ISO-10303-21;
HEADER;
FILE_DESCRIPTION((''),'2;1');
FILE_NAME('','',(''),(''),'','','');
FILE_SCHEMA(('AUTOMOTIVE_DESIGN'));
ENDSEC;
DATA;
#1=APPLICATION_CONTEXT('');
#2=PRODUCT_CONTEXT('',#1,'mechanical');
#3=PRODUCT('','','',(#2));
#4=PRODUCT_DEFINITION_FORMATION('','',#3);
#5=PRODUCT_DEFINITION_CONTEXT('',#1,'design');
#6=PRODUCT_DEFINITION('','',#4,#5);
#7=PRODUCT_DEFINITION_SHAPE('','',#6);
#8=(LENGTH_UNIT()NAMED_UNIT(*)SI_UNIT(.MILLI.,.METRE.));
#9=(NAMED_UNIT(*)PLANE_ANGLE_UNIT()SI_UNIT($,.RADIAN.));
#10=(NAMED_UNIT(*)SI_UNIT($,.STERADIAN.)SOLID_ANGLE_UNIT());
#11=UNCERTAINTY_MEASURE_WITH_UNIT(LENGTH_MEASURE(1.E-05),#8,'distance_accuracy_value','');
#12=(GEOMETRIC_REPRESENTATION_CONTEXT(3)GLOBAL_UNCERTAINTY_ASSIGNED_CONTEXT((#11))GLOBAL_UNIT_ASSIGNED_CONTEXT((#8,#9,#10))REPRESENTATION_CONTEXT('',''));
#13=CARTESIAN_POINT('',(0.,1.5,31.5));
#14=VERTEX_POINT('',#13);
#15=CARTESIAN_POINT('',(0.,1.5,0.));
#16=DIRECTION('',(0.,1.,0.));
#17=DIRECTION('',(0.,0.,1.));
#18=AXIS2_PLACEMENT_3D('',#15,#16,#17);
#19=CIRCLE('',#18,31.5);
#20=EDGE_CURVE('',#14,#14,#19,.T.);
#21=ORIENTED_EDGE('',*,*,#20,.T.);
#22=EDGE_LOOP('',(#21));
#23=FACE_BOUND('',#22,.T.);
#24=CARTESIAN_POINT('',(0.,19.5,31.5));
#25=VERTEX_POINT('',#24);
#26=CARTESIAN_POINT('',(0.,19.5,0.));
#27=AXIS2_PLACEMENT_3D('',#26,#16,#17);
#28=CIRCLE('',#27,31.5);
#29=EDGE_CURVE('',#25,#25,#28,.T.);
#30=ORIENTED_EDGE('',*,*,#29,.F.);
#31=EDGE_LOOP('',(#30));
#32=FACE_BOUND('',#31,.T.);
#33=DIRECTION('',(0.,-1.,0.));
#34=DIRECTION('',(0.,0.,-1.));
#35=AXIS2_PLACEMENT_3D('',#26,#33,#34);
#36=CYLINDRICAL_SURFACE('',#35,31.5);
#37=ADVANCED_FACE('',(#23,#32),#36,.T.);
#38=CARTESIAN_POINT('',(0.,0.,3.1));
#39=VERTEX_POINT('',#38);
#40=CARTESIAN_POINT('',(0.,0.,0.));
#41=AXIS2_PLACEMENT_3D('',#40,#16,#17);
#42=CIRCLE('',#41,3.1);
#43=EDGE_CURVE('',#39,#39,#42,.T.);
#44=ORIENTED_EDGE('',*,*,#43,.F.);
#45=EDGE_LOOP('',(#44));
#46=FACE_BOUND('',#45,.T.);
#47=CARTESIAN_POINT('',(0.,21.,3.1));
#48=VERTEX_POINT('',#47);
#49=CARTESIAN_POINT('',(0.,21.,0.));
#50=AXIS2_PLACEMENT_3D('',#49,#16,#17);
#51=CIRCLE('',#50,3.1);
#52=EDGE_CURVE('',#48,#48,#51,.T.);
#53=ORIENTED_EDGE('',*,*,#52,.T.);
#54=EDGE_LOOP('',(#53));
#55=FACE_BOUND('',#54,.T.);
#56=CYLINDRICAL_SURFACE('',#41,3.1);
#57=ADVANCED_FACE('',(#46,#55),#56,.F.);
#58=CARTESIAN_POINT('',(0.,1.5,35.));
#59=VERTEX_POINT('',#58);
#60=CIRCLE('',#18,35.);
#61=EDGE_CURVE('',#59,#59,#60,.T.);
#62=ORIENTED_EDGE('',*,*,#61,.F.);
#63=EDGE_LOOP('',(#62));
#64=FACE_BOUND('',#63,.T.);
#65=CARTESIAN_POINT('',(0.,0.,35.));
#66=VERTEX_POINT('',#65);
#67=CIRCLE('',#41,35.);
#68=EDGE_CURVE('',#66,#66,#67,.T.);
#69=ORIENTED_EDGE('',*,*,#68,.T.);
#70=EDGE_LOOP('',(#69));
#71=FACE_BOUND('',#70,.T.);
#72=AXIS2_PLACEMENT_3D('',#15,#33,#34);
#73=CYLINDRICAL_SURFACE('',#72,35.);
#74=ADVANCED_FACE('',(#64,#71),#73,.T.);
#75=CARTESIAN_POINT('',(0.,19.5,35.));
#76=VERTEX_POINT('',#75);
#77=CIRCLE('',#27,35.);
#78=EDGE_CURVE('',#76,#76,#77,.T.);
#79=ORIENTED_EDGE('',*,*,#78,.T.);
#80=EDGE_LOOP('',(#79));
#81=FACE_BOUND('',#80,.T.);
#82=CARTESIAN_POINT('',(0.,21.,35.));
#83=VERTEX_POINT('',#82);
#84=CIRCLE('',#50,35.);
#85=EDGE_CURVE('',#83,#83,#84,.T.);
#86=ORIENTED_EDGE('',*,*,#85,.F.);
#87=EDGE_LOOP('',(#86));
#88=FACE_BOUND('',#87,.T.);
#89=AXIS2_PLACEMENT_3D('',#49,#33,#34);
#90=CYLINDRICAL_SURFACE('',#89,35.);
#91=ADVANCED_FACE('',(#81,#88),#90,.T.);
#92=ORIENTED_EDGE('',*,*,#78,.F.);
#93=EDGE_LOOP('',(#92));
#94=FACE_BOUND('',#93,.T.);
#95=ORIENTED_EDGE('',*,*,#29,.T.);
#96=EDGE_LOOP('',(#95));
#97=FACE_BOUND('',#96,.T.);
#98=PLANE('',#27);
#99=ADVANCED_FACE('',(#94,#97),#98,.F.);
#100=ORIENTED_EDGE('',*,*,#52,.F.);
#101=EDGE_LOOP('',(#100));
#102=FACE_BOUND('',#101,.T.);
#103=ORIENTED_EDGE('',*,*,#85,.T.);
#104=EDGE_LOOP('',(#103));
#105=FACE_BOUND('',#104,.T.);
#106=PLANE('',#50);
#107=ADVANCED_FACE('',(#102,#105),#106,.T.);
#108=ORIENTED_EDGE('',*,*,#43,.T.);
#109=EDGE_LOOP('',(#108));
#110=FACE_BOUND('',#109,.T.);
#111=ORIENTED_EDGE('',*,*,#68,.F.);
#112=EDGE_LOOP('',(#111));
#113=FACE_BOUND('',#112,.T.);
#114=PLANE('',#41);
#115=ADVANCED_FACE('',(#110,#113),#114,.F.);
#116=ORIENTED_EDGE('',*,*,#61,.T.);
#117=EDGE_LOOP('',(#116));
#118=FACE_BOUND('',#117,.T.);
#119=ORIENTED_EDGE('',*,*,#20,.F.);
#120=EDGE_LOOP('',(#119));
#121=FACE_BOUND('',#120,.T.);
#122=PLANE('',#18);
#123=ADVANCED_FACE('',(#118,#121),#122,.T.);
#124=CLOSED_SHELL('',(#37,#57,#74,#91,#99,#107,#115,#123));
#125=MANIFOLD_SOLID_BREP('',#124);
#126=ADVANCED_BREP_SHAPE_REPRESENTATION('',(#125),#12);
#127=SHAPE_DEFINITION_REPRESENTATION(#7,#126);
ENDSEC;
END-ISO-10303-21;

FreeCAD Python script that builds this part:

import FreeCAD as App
import Part
import Sketcher
from FreeCAD import Vector
Q = App.Units.Quantity

doc = App.newDocument("Part")
body = doc.addObject("PartDesign::Body", "Body")

# Sketch on XZ plane
sketch1 = doc.addObject("Sketcher::SketchObject", "Sketch")
body.addObject(sketch1)
sketch1.AttachmentSupport = (doc.XZ_Plane, [""])
sketch1.MapMode = "FlatFace"
sketch1.addGeometry(Part.Circle(Vector(0, 0, 0), Vector(0, 0, 1), 35), False)
sketch1.addConstraint([
    Sketcher.Constraint("Coincident", 0, 3, -1, 1),
    Sketcher.Constraint("Diameter", 0, Q("70 mm")),
])
pad1 = doc.addObject("PartDesign::Pad", "Pad")
body.addObject(pad1)
pad1.Profile = sketch1
pad1.Length = 1.5
pad1.Reversed = True

# Sketch on XZ plane
sketch2 = doc.addObject("Sketcher::SketchObject", "Sketch001")
body.addObject(sketch2)
sketch2.AttachmentSupport = (doc.XZ_Plane, [""])
sketch2.MapMode = "FlatFace"
sketch2.AttachmentOffset = App.Placement(Vector(0, 0, -1.5), App.Rotation())
sketch2.addGeometry(Part.Circle(Vector(0, 0, 0), Vector(0, 0, 1), 32), False)
sketch2.addConstraint([
    Sketcher.Constraint("Coincident", 0, 3, -1, 1),
    Sketcher.Constraint("Diameter", 0, Q("63 mm")),
])
pad2 = doc.addObject("PartDesign::Pad", "Pad001")
body.addObject(pad2)
pad2.Profile = sketch2
pad2.Length = 18
pad2.Reversed = True

# Sketch on XZ plane
sketch3 = doc.addObject("Sketcher::SketchObject", "Sketch002")
body.addObject(sketch3)
sketch3.AttachmentSupport = (doc.XZ_Plane, [""])
sketch3.MapMode = "FlatFace"
sketch3.AttachmentOffset = App.Placement(Vector(0, 0, -19.5), App.Rotation())
sketch3.addGeometry(Part.Circle(Vector(0, 0, 0), Vector(0, 0, 1), 35), False)
sketch3.addConstraint([
    Sketcher.Constraint("Coincident", 0, 3, -1, 1),
    Sketcher.Constraint("Diameter", 0, Q("70 mm")),
])
pad3 = doc.addObject("PartDesign::Pad", "Pad002")
body.addObject(pad3)
pad3.Profile = sketch3
pad3.Length = 1.5
pad3.Reversed = True

# Sketch on XZ plane
sketch4 = doc.addObject("Sketcher::SketchObject", "Sketch003")
body.addObject(sketch4)
sketch4.AttachmentSupport = (doc.XZ_Plane, [""])
sketch4.MapMode = "FlatFace"
sketch4.AttachmentOffset = App.Placement(Vector(0, 0, -21), App.Rotation())
sketch4.addGeometry(Part.Circle(Vector(0, 0, 0), Vector(0, 0, 1), 3.1), False)
sketch4.addConstraint([
    Sketcher.Constraint("Coincident", 0, 3, -1, 1),
    Sketcher.Constraint("Diameter", 0, Q("6.2 mm")),
])
pocket1 = doc.addObject("PartDesign::Pocket", "Pocket")
body.addObject(pocket1)
pocket1.Profile = sketch4
pocket1.Type = "ThroughAll"
pocket1.Reversed = True

doc.recompute()
